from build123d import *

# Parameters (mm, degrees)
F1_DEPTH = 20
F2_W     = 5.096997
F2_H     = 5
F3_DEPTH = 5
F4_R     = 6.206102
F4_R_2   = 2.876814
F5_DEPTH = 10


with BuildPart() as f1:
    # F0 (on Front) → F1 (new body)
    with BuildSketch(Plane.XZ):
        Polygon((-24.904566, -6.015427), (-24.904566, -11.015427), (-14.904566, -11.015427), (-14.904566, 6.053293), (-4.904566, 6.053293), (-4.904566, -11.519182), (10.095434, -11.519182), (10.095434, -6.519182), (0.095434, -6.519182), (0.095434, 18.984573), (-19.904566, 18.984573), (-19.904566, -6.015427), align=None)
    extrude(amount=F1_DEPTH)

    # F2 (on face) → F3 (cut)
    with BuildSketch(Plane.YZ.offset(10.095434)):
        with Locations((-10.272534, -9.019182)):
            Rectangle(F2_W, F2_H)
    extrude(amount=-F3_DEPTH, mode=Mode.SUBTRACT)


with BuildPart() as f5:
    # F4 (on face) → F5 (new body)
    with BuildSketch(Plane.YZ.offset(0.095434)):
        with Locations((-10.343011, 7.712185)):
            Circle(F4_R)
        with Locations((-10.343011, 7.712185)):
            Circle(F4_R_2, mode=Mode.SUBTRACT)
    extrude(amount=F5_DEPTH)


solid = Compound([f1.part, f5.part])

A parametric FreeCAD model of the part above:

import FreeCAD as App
import Part
import Sketcher

V = App.Vector


def add_polygon(sketch, points):
    """Adds a closed chain of lines whose ends are joined by coincident constraints."""
    first, n = sketch.GeometryCount, len(points)
    for a, b in zip(points, points[1:] + points[:1]):
        sketch.addGeometry(Part.LineSegment(App.Vector(*a, 0), App.Vector(*b, 0)), False)
    for i in range(n):
        sketch.addConstraint(Sketcher.Constraint("Coincident", first + i, 2, first + (i + 1) % n, 1))

doc = App.newDocument("Part")
body = doc.addObject("PartDesign::Body", "Body")

# Sketch on XZ plane
sketch1 = body.newObject("Sketcher::SketchObject", "Sketch")
sketch1.AttachmentSupport = (doc.getObject("XZ_Plane"), [""])
sketch1.MapMode = "FlatFace"
add_polygon(sketch1, [(-25, -6), (-25, -11), (-15, -11), (-15, 6), (-5, 6), (-5, -12), (10, -12), (10, -7), (0, -7), (0, 19), (-20, 19), (-20, -6)])  # lines 0-11
sketch1.addConstraint(Sketcher.Constraint("Vertical", 0))
sketch1.addConstraint(Sketcher.Constraint("Horizontal", 1))
sketch1.addConstraint(Sketcher.Constraint("Vertical", 2))
sketch1.addConstraint(Sketcher.Constraint("Horizontal", 3))
sketch1.addConstraint(Sketcher.Constraint("Vertical", 4))
sketch1.addConstraint(Sketcher.Constraint("Horizontal", 5))
sketch1.addConstraint(Sketcher.Constraint("Vertical", 6))
sketch1.addConstraint(Sketcher.Constraint("Horizontal", 7))
sketch1.addConstraint(Sketcher.Constraint("Vertical", 8))
sketch1.addConstraint(Sketcher.Constraint("Horizontal", 9))
sketch1.addConstraint(Sketcher.Constraint("Vertical", 10))
sketch1.addConstraint(Sketcher.Constraint("Horizontal", 11))
sketch1.addConstraint(Sketcher.Constraint("Equal", 1, 3))
sketch1.addConstraint(Sketcher.Constraint("Equal", 3, 7))
sketch1.addConstraint(Sketcher.Constraint("Equal", 11, 0))
sketch1.addConstraint(Sketcher.Constraint("Equal", 0, 6))
sketch1.addConstraint(Sketcher.Constraint("DistanceX", 1, 1, 1, 2, 10.0))
sketch1.addConstraint(Sketcher.Constraint("DistanceX", 5, 1, 5, 2, 15.0))
sketch1.addConstraint(Sketcher.Constraint("DistanceX", 9, 2, 9, 1, 20.0))
sketch1.addConstraint(Sketcher.Constraint("DistanceY", 10, 2, 10, 1, 25.0))
sketch1.addConstraint(Sketcher.Constraint("DistanceY", 2, 1, 2, 2, 17.06872))
sketch1.addConstraint(Sketcher.Constraint("DistanceY", 4, 2, 4, 1, 17.572475))
sketch1.addConstraint(Sketcher.Constraint("DistanceY", 6, 2, -1, 1, 6.519182))
sketch1.addConstraint(Sketcher.Constraint("DistanceX", 0, 2, -1, 1, 24.904566))
pad1 = body.newObject("PartDesign::Pad", "Pad")
pad1.Profile = sketch1
pad1.Length = 20

# Sketch on YZ plane
sketch2 = body.newObject("Sketcher::SketchObject", "Sketch001")
sketch2.AttachmentSupport = (doc.getObject("YZ_Plane"), [""])
sketch2.MapMode = "FlatFace"
sketch2.AttachmentOffset = App.Placement(V(0, 0, 10.095434), App.Rotation())
add_polygon(sketch2, [(-13, -7), (-13, -12), (-8, -12), (-8, -7)])  # lines 0-3
sketch2.addConstraint(Sketcher.Constraint("Vertical", 0))
sketch2.addConstraint(Sketcher.Constraint("Horizontal", 1))
sketch2.addConstraint(Sketcher.Constraint("Vertical", 2))
sketch2.addConstraint(Sketcher.Constraint("Horizontal", 3))
sketch2.addConstraint(Sketcher.Constraint("DistanceY", 0, 2, 0, 1, 5.0))
sketch2.addConstraint(Sketcher.Constraint("DistanceX", 1, 1, 1, 2, 5.096997))
sketch2.addConstraint(Sketcher.Constraint("DistanceY", 2, 2, -1, 1, 6.519182))
sketch2.addConstraint(Sketcher.Constraint("DistanceX", 0, 2, -1, 1, 12.821032))
pocket1 = body.newObject("PartDesign::Pocket", "Pocket")
pocket1.Profile = sketch2
pocket1.Length = 5
body2 = doc.addObject("PartDesign::Body", "Body001")

# Sketch on YZ plane
sketch3 = body2.newObject("Sketcher::SketchObject", "Sketch002")
sketch3.AttachmentSupport = (doc.getObject("YZ_Plane001"), [""])
sketch3.MapMode = "FlatFace"
sketch3.AttachmentOffset = App.Placement(V(0, 0, 0.095434), App.Rotation())
sketch3.addGeometry(Part.Circle(V(-10.3, 7.7, 0), V(0, 0, 1), 6.2), False)
sketch3.addGeometry(Part.Circle(V(-10.3, 7.7, 0), V(0, 0, 1), 2.9), False)
sketch3.addConstraint(Sketcher.Constraint("Coincident", 1, 3, 0, 3))
sketch3.addConstraint(Sketcher.Constraint("Diameter", 0, 12.412204))
sketch3.addConstraint(Sketcher.Constraint("Diameter", 1, 5.753628))
sketch3.addConstraint(Sketcher.Constraint("DistanceX", 0, 3, -1, 1, 10.343011))
sketch3.addConstraint(Sketcher.Constraint("DistanceY", -1, 1, 0, 3, 7.712185))
pad2 = body2.newObject("PartDesign::Pad", "Pad001")
pad2.Profile = sketch3
pad2.Length = 10

doc.recompute()
